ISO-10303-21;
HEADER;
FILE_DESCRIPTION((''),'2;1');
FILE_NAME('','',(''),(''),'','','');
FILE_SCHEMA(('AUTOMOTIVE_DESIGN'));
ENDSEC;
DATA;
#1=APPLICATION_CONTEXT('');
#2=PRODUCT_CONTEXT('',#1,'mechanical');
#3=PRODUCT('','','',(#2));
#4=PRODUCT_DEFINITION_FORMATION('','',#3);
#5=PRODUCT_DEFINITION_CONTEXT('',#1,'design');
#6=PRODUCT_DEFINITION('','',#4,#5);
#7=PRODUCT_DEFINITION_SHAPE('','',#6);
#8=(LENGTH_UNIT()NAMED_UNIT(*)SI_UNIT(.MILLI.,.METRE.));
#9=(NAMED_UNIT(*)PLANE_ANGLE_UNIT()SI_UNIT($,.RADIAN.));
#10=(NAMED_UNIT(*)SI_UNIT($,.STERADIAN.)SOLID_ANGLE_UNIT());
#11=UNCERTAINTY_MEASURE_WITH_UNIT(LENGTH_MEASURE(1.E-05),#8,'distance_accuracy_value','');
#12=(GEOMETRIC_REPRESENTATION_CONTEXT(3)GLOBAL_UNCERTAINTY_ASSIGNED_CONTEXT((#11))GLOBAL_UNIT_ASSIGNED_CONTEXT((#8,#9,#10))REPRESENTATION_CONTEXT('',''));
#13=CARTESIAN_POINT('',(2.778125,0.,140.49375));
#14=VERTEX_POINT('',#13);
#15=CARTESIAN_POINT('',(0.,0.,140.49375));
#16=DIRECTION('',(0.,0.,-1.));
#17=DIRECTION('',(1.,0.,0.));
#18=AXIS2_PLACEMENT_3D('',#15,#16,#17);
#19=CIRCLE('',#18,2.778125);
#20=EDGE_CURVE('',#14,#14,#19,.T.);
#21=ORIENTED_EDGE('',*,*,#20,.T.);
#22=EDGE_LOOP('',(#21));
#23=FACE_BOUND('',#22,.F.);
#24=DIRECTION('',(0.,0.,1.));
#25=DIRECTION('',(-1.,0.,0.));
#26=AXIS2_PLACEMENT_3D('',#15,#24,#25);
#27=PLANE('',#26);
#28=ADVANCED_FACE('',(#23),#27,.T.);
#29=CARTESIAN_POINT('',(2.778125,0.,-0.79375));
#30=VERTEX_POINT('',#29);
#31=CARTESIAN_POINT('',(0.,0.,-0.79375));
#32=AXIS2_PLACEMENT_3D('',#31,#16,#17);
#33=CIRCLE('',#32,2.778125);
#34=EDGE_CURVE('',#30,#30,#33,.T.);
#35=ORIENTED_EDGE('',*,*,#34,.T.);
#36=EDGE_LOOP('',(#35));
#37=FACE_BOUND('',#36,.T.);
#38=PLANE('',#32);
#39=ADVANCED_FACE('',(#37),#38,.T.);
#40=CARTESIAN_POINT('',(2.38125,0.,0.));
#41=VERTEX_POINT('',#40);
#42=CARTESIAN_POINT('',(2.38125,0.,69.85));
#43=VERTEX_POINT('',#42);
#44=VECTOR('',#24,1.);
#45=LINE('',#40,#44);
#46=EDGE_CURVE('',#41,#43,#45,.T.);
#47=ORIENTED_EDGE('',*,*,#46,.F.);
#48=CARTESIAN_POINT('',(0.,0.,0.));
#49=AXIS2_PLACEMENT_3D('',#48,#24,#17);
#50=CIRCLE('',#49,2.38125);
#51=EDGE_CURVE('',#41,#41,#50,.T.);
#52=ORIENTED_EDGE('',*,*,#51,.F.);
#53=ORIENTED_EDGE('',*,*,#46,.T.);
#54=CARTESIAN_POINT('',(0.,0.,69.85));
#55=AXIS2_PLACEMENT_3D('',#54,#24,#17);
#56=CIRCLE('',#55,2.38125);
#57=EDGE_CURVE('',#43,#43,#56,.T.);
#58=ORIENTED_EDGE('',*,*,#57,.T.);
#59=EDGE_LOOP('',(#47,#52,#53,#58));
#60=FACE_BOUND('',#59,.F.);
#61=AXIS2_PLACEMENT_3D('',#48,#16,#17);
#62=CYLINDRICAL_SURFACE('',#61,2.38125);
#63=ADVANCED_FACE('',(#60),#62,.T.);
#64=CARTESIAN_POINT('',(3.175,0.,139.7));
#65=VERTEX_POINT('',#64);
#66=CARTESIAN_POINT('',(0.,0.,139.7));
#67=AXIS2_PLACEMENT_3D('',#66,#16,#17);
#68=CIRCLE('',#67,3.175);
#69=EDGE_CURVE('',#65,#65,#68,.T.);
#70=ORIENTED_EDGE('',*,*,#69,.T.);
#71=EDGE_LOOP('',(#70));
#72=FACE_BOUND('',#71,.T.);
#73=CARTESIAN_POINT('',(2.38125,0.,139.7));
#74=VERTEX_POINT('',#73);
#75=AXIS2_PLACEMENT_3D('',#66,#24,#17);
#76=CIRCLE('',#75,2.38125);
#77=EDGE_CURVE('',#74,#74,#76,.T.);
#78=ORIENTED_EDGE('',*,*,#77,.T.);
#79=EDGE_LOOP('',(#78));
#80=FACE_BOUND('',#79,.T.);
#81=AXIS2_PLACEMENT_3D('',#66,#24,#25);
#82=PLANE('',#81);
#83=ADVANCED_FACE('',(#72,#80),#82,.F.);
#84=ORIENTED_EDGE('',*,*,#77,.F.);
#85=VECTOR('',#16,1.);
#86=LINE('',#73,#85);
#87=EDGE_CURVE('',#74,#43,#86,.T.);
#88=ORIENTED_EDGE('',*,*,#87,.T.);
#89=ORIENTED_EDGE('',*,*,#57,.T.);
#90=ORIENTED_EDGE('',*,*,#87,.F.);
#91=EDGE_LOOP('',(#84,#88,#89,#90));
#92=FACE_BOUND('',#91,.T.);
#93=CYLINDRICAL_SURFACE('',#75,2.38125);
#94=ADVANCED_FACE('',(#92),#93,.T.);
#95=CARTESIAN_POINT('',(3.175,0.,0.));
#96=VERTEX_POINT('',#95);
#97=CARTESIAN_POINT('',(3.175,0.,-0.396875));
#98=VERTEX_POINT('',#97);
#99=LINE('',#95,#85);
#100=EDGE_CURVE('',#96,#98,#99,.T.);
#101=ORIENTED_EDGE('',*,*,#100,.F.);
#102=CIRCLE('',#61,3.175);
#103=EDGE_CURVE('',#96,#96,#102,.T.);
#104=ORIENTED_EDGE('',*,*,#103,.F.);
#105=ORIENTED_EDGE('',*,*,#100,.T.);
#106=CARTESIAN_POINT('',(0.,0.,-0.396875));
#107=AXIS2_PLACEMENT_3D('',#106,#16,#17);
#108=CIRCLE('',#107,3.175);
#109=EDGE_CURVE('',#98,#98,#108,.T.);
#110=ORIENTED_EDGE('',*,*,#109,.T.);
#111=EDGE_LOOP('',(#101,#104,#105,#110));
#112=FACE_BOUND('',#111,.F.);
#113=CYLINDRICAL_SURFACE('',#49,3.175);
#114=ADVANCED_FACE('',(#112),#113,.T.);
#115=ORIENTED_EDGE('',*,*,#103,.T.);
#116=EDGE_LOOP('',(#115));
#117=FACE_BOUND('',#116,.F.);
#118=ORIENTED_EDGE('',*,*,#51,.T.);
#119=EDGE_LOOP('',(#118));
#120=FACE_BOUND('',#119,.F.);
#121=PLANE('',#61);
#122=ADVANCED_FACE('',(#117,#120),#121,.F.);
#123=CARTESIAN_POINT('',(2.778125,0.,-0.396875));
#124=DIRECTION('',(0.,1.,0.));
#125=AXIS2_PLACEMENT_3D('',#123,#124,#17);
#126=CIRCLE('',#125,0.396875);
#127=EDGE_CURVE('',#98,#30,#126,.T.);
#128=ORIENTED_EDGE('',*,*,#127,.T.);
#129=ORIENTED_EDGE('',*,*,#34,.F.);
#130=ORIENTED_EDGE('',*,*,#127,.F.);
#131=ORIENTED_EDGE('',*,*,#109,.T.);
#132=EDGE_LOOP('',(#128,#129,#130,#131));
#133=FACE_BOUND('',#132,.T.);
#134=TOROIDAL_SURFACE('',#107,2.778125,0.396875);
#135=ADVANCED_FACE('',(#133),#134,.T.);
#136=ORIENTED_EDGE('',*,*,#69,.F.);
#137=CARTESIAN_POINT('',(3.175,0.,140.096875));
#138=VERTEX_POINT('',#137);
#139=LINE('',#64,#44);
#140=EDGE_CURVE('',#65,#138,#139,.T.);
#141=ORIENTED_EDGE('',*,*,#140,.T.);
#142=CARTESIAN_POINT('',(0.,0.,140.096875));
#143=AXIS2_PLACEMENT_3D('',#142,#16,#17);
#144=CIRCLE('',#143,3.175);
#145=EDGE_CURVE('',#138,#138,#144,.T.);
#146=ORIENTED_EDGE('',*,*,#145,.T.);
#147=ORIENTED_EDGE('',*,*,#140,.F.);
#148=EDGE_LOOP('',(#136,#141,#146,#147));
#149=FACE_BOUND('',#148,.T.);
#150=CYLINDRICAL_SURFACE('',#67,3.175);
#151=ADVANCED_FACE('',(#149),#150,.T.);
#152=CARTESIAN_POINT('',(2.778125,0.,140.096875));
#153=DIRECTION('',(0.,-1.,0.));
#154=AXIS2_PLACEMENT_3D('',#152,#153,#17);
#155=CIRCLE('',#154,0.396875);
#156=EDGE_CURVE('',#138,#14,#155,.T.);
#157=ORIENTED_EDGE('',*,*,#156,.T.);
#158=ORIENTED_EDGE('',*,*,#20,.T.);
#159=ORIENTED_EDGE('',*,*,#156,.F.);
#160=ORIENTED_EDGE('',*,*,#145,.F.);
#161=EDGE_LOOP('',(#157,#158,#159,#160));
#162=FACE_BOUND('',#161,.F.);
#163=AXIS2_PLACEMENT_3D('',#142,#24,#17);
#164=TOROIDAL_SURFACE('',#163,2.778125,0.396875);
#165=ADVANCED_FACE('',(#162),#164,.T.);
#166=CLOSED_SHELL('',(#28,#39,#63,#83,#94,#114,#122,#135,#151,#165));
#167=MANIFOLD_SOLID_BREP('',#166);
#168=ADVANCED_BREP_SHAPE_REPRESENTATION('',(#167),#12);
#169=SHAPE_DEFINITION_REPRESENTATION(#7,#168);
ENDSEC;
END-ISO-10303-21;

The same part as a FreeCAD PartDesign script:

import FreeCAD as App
import Part
import Sketcher
Q = App.Units.Quantity


def edges_at(feature, points):
    """Names of the edges that pass closest to the given points."""
    edges = feature.Shape.Edges
    near = lambda p: min(range(len(edges)), key=lambda i: edges[i].distToShape(Part.Vertex(*p))[0])
    return sorted({f"Edge{near(p) + 1}" for p in points})

doc = App.newDocument("Part")
body = doc.addObject("PartDesign::Body", "Body")

# Sketch on XY plane
sketch1 = body.newObject("Sketcher::SketchObject", "Sketch")
sketch1.AttachmentSupport = (doc.getObject("XY_Plane"), [""])
sketch1.MapMode = "FlatFace"
sketch1.addGeometry(Part.Circle(App.Vector(0, 0, 0), App.Vector(0, 0, 1), 2.4), False)
sketch1.addConstraint([
    Sketcher.Constraint("Coincident", 0, 3, -1, 1),
    Sketcher.Constraint("Diameter", 0, Q("0.1875 in")),
])
pad1 = body.newObject("PartDesign::Pad", "Pad")
pad1.Profile = sketch1
pad1.Length = Q("2.75 in")

# Sketch on XY plane
sketch2 = body.newObject("Sketcher::SketchObject", "Sketch001")
sketch2.AttachmentSupport = (doc.getObject("XY_Plane"), [""])
sketch2.MapMode = "FlatFace"
sketch2.addGeometry(Part.Circle(App.Vector(0, 0, 0), App.Vector(0, 0, 1), 3.2), False)
sketch2.addConstraint([
    Sketcher.Constraint("Coincident", 0, 3, -1, 1),
    Sketcher.Constraint("Diameter", 0, Q("0.25 in")),
])
pad2 = body.newObject("PartDesign::Pad", "Pad001")
pad2.Profile = sketch2
pad2.Length = Q("0.03125 in")
pad2.Reversed = True
doc.recompute()

fillet = body.newObject("PartDesign::Fillet", "Fillet")
fillet.Base = (pad2, edges_at(pad2, [(-3.175, 0, -0.794)]))
fillet.Radius = Q("0.015625 in")
body2 = doc.addObject("PartDesign::Body", "Body001")
doc.recompute()

body2.BaseFeature = body
doc.recompute()

mirroring = doc.addObject("Part::Mirroring", "Mirroring")
mirroring.Source = body
mirroring.Base = App.Vector(0, 0, 69.85)
mirroring.Normal = App.Vector(0, 0, 1)
body3 = doc.addObject("PartDesign::Body", "Body002")
body3.BaseFeature = mirroring
boolean = body2.newObject("PartDesign::Boolean", "Boolean")
boolean.Type = "Fuse"
boolean.addObjects([body3])
doc.recompute()
mirroring.Visibility = False

doc.recompute()
